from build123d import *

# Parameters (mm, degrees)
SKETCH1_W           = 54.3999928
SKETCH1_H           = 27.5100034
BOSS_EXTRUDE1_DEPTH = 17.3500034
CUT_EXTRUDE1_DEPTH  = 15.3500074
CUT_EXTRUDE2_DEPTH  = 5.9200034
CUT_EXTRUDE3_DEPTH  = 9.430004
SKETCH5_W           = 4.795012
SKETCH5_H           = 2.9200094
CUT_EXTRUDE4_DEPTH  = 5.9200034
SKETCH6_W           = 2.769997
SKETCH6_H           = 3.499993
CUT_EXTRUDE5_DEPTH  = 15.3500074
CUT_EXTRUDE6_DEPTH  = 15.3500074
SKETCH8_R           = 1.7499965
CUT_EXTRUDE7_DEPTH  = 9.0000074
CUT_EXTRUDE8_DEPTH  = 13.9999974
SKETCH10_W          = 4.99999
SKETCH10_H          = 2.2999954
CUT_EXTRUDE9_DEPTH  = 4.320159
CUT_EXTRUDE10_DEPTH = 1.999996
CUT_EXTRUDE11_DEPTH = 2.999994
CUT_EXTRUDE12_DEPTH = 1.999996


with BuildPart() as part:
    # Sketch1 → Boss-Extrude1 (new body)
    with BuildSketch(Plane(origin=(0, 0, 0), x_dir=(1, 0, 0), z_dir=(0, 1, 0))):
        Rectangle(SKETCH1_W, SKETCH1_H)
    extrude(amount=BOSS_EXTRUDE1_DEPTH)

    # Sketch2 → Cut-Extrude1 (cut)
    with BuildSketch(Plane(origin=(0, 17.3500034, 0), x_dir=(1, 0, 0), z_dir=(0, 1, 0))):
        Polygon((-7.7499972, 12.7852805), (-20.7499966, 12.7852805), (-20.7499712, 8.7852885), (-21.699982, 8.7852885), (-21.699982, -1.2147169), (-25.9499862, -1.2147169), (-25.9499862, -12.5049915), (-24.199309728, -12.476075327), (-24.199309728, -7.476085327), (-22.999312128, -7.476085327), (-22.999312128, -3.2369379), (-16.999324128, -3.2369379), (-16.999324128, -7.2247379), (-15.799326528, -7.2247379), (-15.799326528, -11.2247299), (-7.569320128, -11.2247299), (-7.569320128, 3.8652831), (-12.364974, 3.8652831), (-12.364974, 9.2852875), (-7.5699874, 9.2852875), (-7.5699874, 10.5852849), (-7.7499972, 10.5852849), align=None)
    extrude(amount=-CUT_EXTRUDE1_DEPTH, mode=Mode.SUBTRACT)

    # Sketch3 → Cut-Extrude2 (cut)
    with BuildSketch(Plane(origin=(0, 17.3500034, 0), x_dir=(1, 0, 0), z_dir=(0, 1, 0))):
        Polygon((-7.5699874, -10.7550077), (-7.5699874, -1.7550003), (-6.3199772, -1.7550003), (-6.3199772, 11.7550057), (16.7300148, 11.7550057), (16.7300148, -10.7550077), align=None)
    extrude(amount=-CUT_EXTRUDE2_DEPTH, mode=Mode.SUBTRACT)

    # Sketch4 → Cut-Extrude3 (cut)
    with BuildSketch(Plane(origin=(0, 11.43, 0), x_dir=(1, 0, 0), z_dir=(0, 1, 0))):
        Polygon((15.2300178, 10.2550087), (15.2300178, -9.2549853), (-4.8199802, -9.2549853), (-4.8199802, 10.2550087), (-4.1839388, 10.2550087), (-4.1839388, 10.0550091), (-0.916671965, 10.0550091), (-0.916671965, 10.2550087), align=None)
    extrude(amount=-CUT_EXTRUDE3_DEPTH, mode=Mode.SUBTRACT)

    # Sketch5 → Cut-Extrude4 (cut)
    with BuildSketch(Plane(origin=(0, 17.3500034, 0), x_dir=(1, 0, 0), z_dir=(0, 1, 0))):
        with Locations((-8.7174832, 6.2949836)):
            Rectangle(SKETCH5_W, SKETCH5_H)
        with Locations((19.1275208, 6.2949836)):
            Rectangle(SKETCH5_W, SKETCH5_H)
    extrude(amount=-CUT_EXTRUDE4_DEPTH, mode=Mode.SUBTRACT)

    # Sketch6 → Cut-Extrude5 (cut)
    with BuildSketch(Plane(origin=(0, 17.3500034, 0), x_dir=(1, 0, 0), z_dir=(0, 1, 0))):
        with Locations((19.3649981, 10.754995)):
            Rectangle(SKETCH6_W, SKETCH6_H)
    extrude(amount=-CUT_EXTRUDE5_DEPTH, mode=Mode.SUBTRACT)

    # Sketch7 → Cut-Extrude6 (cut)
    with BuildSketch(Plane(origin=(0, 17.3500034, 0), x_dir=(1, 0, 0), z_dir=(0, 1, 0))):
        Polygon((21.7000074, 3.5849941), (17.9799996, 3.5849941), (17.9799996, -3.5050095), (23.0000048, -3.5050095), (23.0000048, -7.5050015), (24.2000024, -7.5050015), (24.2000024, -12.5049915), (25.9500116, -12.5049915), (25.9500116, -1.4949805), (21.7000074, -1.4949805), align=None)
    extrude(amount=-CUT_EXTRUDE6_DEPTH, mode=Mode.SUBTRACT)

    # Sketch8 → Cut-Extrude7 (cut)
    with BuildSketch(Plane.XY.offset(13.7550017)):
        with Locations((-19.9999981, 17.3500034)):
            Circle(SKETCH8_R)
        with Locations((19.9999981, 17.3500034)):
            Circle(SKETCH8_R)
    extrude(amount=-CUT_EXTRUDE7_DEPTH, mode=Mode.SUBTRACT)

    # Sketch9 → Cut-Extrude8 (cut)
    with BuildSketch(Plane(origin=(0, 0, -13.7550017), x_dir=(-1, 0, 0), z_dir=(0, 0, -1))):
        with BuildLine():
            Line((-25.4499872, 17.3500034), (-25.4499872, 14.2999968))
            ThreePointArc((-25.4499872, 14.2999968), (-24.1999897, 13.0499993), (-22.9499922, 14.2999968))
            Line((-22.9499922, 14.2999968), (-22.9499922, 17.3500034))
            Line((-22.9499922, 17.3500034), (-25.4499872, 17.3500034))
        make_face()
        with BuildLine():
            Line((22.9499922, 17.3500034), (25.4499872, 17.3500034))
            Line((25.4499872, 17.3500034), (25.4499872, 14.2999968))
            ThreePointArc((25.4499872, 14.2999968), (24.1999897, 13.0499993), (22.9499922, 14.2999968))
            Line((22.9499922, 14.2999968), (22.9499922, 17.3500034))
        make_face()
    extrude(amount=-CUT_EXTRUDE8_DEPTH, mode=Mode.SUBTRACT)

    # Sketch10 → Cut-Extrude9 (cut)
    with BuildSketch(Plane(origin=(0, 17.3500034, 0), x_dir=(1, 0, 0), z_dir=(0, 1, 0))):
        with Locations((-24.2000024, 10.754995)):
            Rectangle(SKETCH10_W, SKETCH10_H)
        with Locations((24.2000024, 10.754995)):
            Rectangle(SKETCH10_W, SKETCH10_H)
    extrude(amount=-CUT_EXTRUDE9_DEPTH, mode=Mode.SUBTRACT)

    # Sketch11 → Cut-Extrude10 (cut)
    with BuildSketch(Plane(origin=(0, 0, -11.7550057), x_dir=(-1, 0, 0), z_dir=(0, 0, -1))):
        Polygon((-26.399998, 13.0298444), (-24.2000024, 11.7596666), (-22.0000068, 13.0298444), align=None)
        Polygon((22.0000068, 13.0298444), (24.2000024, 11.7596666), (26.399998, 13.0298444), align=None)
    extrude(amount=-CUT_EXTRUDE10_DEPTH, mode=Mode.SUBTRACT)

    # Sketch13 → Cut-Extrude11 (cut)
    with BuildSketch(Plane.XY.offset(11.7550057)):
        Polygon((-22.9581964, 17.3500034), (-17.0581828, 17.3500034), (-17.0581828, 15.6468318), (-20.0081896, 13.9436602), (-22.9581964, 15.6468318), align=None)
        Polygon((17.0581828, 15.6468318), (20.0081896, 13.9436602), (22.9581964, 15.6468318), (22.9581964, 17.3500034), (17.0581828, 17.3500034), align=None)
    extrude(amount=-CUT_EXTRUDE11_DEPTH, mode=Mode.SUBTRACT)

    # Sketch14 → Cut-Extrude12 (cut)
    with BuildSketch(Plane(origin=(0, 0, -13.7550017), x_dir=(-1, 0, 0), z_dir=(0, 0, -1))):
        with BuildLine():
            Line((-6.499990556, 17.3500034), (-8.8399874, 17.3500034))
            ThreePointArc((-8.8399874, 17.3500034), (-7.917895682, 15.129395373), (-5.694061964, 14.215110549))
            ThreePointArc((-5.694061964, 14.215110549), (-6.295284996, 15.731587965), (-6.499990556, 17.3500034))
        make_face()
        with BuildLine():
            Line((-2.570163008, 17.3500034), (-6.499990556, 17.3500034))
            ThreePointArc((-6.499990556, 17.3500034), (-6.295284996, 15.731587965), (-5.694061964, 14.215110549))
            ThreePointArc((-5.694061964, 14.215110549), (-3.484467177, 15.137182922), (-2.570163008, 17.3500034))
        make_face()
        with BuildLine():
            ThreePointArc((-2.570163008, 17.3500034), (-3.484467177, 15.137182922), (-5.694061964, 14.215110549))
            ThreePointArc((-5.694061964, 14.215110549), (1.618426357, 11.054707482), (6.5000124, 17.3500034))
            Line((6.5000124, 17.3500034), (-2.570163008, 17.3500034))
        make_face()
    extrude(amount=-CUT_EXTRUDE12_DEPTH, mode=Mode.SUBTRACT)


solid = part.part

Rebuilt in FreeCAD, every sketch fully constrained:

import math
import FreeCAD as App
import Part
import Sketcher

V = App.Vector
Q = App.Units.Quantity


def add_polygon(sketch, points):
    """Adds a closed chain of lines whose ends are joined by coincident constraints."""
    first, n = sketch.GeometryCount, len(points)
    for a, b in zip(points, points[1:] + points[:1]):
        sketch.addGeometry(Part.LineSegment(App.Vector(*a, 0), App.Vector(*b, 0)), False)
    for i in range(n):
        sketch.addConstraint(Sketcher.Constraint("Coincident", first + i, 2, first + (i + 1) % n, 1))

doc = App.newDocument("Part")
body = doc.addObject("PartDesign::Body", "Body")

sketch1 = doc.addObject("Sketcher::SketchObject", "Sketch")
body.addObject(sketch1)
sketch1.AttachmentSupport = (doc.XZ_Plane, [""])
sketch1.MapMode = "FlatFace"
add_polygon(sketch1, [(-27, -14), (-27, 14), (27, 14), (27, -14)])
sketch1.addConstraint([
    Sketcher.Constraint("Vertical", 0),
    Sketcher.Constraint("Horizontal", 1),
    Sketcher.Constraint("Vertical", 2),
    Sketcher.Constraint("Horizontal", 3),
    Sketcher.Constraint("Symmetric", 0, 2, 2, 2, -1, 1),
    Sketcher.Constraint("DistanceY", -1, 1, 0, 2, Q("13.755002 mm")),
    Sketcher.Constraint("DistanceX", 1, 1, 1, 2, Q("54.399993 mm")),
])
pad1 = doc.addObject("PartDesign::Pad", "Pad")
body.addObject(pad1)
pad1.Profile = sketch1
pad1.Length = 17.350003
pad1.Reversed = True

sketch2 = doc.addObject("Sketcher::SketchObject", "Sketch001")
body.addObject(sketch2)
sketch2.AttachmentSupport = (doc.XZ_Plane, [""])
sketch2.MapMode = "FlatFace"
sketch2.AttachmentOffset = App.Placement(V(0, 0, -17.350003), App.Rotation())
add_polygon(sketch2, [(-7.75, -12.79), (-20.75, -12.79), (-20.75, -8.79), (-21.7, -8.79), (-21.7, 1.21), (-25.95, 1.21), (-25.95, 12.5), (-24.2, 12.48), (-24.2, 7.48), (-23, 7.48), (-23, 3.24), (-17, 3.24), (-17, 7.22), (-15.8, 7.22), (-15.8, 11.22), (-7.57, 11.22), (-7.57, -3.87), (-12.36, -3.87), (-12.36, -9.29), (-7.57, -9.29), (-7.57, -10.59), (-7.75, -10.59)])
sketch2.addConstraint([
    Sketcher.Constraint("Horizontal", 0),
    Sketcher.Constraint("Horizontal", 2),
    Sketcher.Constraint("Vertical", 3),
    Sketcher.Constraint("Horizontal", 4),
    Sketcher.Constraint("Vertical", 5),
    Sketcher.Constraint("Vertical", 7),
    Sketcher.Constraint("Horizontal", 8),
    Sketcher.Constraint("Vertical", 9),
    Sketcher.Constraint("Horizontal", 10),
    Sketcher.Constraint("Vertical", 11),
    Sketcher.Constraint("Horizontal", 12),
    Sketcher.Constraint("Vertical", 13),
    Sketcher.Constraint("Horizontal", 14),
    Sketcher.Constraint("Vertical", 15),
    Sketcher.Constraint("Horizontal", 16),
    Sketcher.Constraint("Vertical", 17),
    Sketcher.Constraint("Horizontal", 18),
    Sketcher.Constraint("Vertical", 19),
    Sketcher.Constraint("Horizontal", 20),
    Sketcher.Constraint("Vertical", 21),
    Sketcher.Constraint("Equal", 8, 12),
    Sketcher.Constraint("DistanceX", 0, 2, 0, 1, Q("12.999999 mm")),
    Sketcher.Constraint("DistanceY", 17, 2, 1, 2, Q("0.499999 mm")),
    Sketcher.Constraint("DistanceY", 16, 2, 3, 2, Q("5.08 mm")),
    Sketcher.Constraint("DistanceY", 19, 2, 15, 2, Q("6.720002 mm")),
    Sketcher.Constraint("DistanceY", 11, 1, 11, 2, Q("3.9878 mm")),
    Sketcher.Constraint("DistanceX", 2, 2, 2, 1, Q("0.950011 mm")),
    Sketcher.Constraint("DistanceX", 20, 2, 20, 1, Q("0.18001 mm")),
    Sketcher.Constraint("DistanceY", 7, 2, 7, 1, Q("4.99999 mm")),
    Sketcher.Constraint("DistanceY", 13, 1, 13, 2, Q("3.999992 mm")),
    Sketcher.Constraint("DistanceX", 4, 2, 4, 1, Q("4.250004 mm")),
    Sketcher.Constraint("DistanceX", 8, 1, 8, 2, Q("1.199998 mm")),
    Sketcher.Constraint("DistanceX", 10, 1, 10, 2, Q("5.999988 mm")),
    Sketcher.Constraint("DistanceX", 14, 1, 14, 2, Q("8.230006 mm")),
    Sketcher.Constraint("DistanceX", 16, 2, 16, 1, Q("4.795654 mm")),
    Sketcher.Constraint("DistanceX", 18, 1, 18, 2, Q("4.794987 mm")),
    Sketcher.Constraint("DistanceY", 3, 1, 3, 2, Q("10.000005 mm")),
    Sketcher.Constraint("DistanceY", 5, 1, 5, 2, Q("11.290275 mm")),
    Sketcher.Constraint("DistanceY", 9, 2, 9, 1, Q("4.239147 mm")),
    Sketcher.Constraint("DistanceY", 15, 2, 15, 1, Q("15.090013 mm")),
    Sketcher.Constraint("DistanceY", 21, 2, 21, 1, Q("2.199996 mm")),
    Sketcher.Constraint("DistanceY", 0, 2, -1, 1, Q("12.785281 mm")),
    Sketcher.Constraint("DistanceX", 1, 2, -1, 1, Q("20.749971 mm")),
    Sketcher.Constraint("DistanceX", 6, 2, -1, 1, Q("24.19931 mm")),
])
pocket1 = doc.addObject("PartDesign::Pocket", "Pocket")
body.addObject(pocket1)
pocket1.Profile = sketch2
pocket1.Length = 15.350007
pocket1.Reversed = True

sketch3 = doc.addObject("Sketcher::SketchObject", "Sketch002")
body.addObject(sketch3)
sketch3.AttachmentSupport = (doc.XZ_Plane, [""])
sketch3.MapMode = "FlatFace"
sketch3.AttachmentOffset = App.Placement(V(0, 0, -17.350003), App.Rotation())
add_polygon(sketch3, [(-7.6, 1.8), (-7.6, 10.8), (16.7, 10.8), (16.7, -11.8), (-6.3, -11.8), (-6.3, 1.8)])
sketch3.addConstraint([
    Sketcher.Constraint("Vertical", 0),
    Sketcher.Constraint("Horizontal", 1),
    Sketcher.Constraint("Vertical", 2),
    Sketcher.Constraint("Horizontal", 3),
    Sketcher.Constraint("Vertical", 4),
    Sketcher.Constraint("Horizontal", 5),
    Sketcher.Constraint("DistanceY", -1, 1, 4, 2, Q("1.755 mm")),
    Sketcher.Constraint("DistanceX", 3, 2, 3, 1, Q("23.049992 mm")),
    Sketcher.Constraint("DistanceX", 5, 2, 5, 1, Q("1.25001 mm")),
    Sketcher.Constraint("DistanceY", 0, 1, 0, 2, Q("9.000007 mm")),
    Sketcher.Constraint("DistanceY", 2, 2, 2, 1, Q("22.510013 mm")),
    Sketcher.Constraint("DistanceX", 0, 2, -1, 1, Q("7.569987 mm")),
])
pocket2 = doc.addObject("PartDesign::Pocket", "Pocket001")
body.addObject(pocket2)
pocket2.Profile = sketch3
pocket2.Length = 5.920003
pocket2.Reversed = True

sketch4 = doc.addObject("Sketcher::SketchObject", "Sketch003")
body.addObject(sketch4)
sketch4.AttachmentSupport = (doc.XZ_Plane, [""])
sketch4.MapMode = "FlatFace"
sketch4.AttachmentOffset = App.Placement(V(0, 0, -11.43), App.Rotation())
add_polygon(sketch4, [(15.23, 9.25), (15.23, -10.26), (-0.92, -10.26), (-0.92, -10.06), (-4.18, -10.06), (-4.18, -10.26), (-4.82, -10.26), (-4.82, 9.25)])
sketch4.addConstraint([
    Sketcher.Constraint("Vertical", 0),
    Sketcher.Constraint("Horizontal", 1),
    Sketcher.Constraint("Vertical", 2),
    Sketcher.Constraint("Horizontal", 3),
    Sketcher.Constraint("Vertical", 4),
    Sketcher.Constraint("Horizontal", 5),
    Sketcher.Constraint("Vertical", 6),
    Sketcher.Constraint("Horizontal", 7),
    Sketcher.Constraint("Horizontal", 1, 2, 4, 2),
    Sketcher.Constraint("DistanceY", 2, 1, 2, 2, Q("0.2 mm")),
    Sketcher.Constraint("DistanceX", 7, 1, 7, 2, Q("20.049998 mm")),
    Sketcher.Constraint("DistanceX", 1, 2, 1, 1, Q("16.14669 mm")),
    Sketcher.Constraint("DistanceX", 5, 2, 5, 1, Q("0.636041 mm")),
    Sketcher.Constraint("DistanceY", 0, 2, 0, 1, Q("19.509994 mm")),
    Sketcher.Constraint("DistanceY", 0, 2, -1, 1, Q("10.255009 mm")),
    Sketcher.Constraint("DistanceX", 1, 2, -1, 1, Q("0.916672 mm")),
])
pocket3 = doc.addObject("PartDesign::Pocket", "Pocket002")
body.addObject(pocket3)
pocket3.Profile = sketch4
pocket3.Length = 9.430004
pocket3.Reversed = True

sketch5 = doc.addObject("Sketcher::SketchObject", "Sketch004")
body.addObject(sketch5)
sketch5.AttachmentSupport = (doc.XZ_Plane, [""])
sketch5.MapMode = "FlatFace"
sketch5.AttachmentOffset = App.Placement(V(0, 0, -17.350003), App.Rotation())
add_polygon(sketch5, [(-11.1, -7.8), (-11.1, -4.8), (-6.3, -4.8), (-6.3, -7.8)])
add_polygon(sketch5, [(16.7, -7.8), (16.7, -4.8), (21.5, -4.8), (21.5, -7.8)])
sketch5.addConstraint([
    Sketcher.Constraint("Vertical", 0),
    Sketcher.Constraint("Horizontal", 1),
    Sketcher.Constraint("Vertical", 2),
    Sketcher.Constraint("Horizontal", 3),
    Sketcher.Constraint("Vertical", 4),
    Sketcher.Constraint("Horizontal", 5),
    Sketcher.Constraint("Vertical", 6),
    Sketcher.Constraint("Horizontal", 7),
    Sketcher.Constraint("Horizontal", 1, 2, 4, 2),
    Sketcher.Constraint("Horizontal", 3, 2, 6, 2),
    Sketcher.Constraint("Equal", 3, 5),
    Sketcher.Constraint("DistanceX", 1, 1, 1, 2, Q("4.795012 mm")),
    Sketcher.Constraint("DistanceY", 0, 1, 0, 2, Q("2.920009 mm")),
    Sketcher.Constraint("DistanceX", 0, 2, -1, 1, Q("11.114989 mm")),
    Sketcher.Constraint("DistanceY", 0, 2, -1, 1, Q("4.834979 mm")),
    Sketcher.Constraint("DistanceX", 1, 2, 4, 2, Q("23.049992 mm")),
])
pocket4 = doc.addObject("PartDesign::Pocket", "Pocket003")
body.addObject(pocket4)
pocket4.Profile = sketch5
pocket4.Length = 5.920003
pocket4.Reversed = True

sketch6 = doc.addObject("Sketcher::SketchObject", "Sketch005")
body.addObject(sketch6)
sketch6.AttachmentSupport = (doc.XZ_Plane, [""])
sketch6.MapMode = "FlatFace"
sketch6.AttachmentOffset = App.Placement(V(0, 0, -17.350003), App.Rotation())
add_polygon(sketch6, [(18, -12.5), (18, -9), (20.7, -9), (20.7, -12.5)])
sketch6.addConstraint([
    Sketcher.Constraint("Vertical", 0),
    Sketcher.Constraint("Horizontal", 1),
    Sketcher.Constraint("Vertical", 2),
    Sketcher.Constraint("Horizontal", 3),
    Sketcher.Constraint("DistanceX", -1, 1, 0, 2, Q("17.98 mm")),
    Sketcher.Constraint("DistanceY", 0, 2, -1, 1, Q("9.004998 mm")),
    Sketcher.Constraint("DistanceX", 1, 1, 1, 2, Q("2.769997 mm")),
    Sketcher.Constraint("DistanceY", 0, 1, 0, 2, Q("3.499993 mm")),
])
pocket5 = doc.addObject("PartDesign::Pocket", "Pocket004")
body.addObject(pocket5)
pocket5.Profile = sketch6
pocket5.Length = 15.350007
pocket5.Reversed = True

sketch7 = doc.addObject("Sketcher::SketchObject", "Sketch006")
body.addObject(sketch7)
sketch7.AttachmentSupport = (doc.XZ_Plane, [""])
sketch7.MapMode = "FlatFace"
sketch7.AttachmentOffset = App.Placement(V(0, 0, -17.350003), App.Rotation())
add_polygon(sketch7, [(21.7, -3.6), (18, -3.6), (18, 3.5), (23, 3.5), (23, 7.5), (24.2, 7.5), (24.2, 12.5), (26, 12.5), (26, 1.5), (21.7, 1.5)])
sketch7.addConstraint([
    Sketcher.Constraint("Horizontal", 0),
    Sketcher.Constraint("Vertical", 1),
    Sketcher.Constraint("Horizontal", 2),
    Sketcher.Constraint("Vertical", 3),
    Sketcher.Constraint("Horizontal", 4),
    Sketcher.Constraint("Vertical", 5),
    Sketcher.Constraint("Horizontal", 6),
    Sketcher.Constraint("Vertical", 7),
    Sketcher.Constraint("Horizontal", 8),
    Sketcher.Constraint("Vertical", 9),
    Sketcher.Constraint("DistanceX", -1, 1, 0, 2, Q("17.98 mm")),
    Sketcher.Constraint("DistanceY", -1, 1, 3, 2, Q("7.505001 mm")),
    Sketcher.Constraint("DistanceX", 6, 1, 6, 2, Q("1.750009 mm")),
    Sketcher.Constraint("DistanceY", 3, 1, 3, 2, Q("3.999992 mm")),
    Sketcher.Constraint("DistanceY", 5, 1, 5, 2, Q("4.99999 mm")),
    Sketcher.Constraint("DistanceY", 7, 2, 7, 1, Q("11.010011 mm")),
    Sketcher.Constraint("DistanceX", 0, 2, 0, 1, Q("3.720008 mm")),
    Sketcher.Constraint("DistanceX", 2, 1, 2, 2, Q("5.020005 mm")),
    Sketcher.Constraint("DistanceX", 4, 1, 4, 2, Q("1.199998 mm")),
    Sketcher.Constraint("DistanceY", 1, 1, 1, 2, Q("7.090004 mm")),
])
pocket6 = doc.addObject("PartDesign::Pocket", "Pocket005")
body.addObject(pocket6)
pocket6.Profile = sketch7
pocket6.Length = 15.350007
pocket6.Reversed = True

sketch8 = doc.addObject("Sketcher::SketchObject", "Sketch007")
body.addObject(sketch8)
sketch8.AttachmentSupport = (doc.XY_Plane, [""])
sketch8.MapMode = "FlatFace"
sketch8.AttachmentOffset = App.Placement(V(0, 0, 13.755002), App.Rotation())
sketch8.addGeometry([
    Part.Circle(V(-20, 17.4, 0), V(0, 0, 1), 1.7),
    Part.Circle(V(20, 17.4, 0), V(0, 0, 1), 1.7),
], False)
sketch8.addConstraint([
    Sketcher.Constraint("Equal", 0, 1),
    Sketcher.Constraint("Symmetric", 0, 3, 1, 3, -2),
    Sketcher.Constraint("DistanceX", 0, 3, -1, 1, Q("19.999998 mm")),
    Sketcher.Constraint("Diameter", 0, Q("3.499993 mm")),
    Sketcher.Constraint("DistanceY", -1, 1, 0, 3, Q("17.350003 mm")),
])
pocket7 = doc.addObject("PartDesign::Pocket", "Pocket006")
body.addObject(pocket7)
pocket7.Profile = sketch8
pocket7.Length = 9.000007

sketch9 = doc.addObject("Sketcher::SketchObject", "Sketch008")
body.addObject(sketch9)
sketch9.AttachmentSupport = (doc.XY_Plane, [""])
sketch9.MapMode = "FlatFace"
sketch9.AttachmentOffset = App.Placement(V(0, 0, -13.755002), App.Rotation())
sketch9.addGeometry([
    Part.LineSegment(V(25.4, 17.4, 0), V(25.4, 14.3, 0)),
    Part.ArcOfCircle(Part.Circle(V(24.2, 14.3, 0), V(0, 0, 1), 1.2), math.radians(180), math.radians(360)),
    Part.LineSegment(V(22.9, 14.3, 0), V(22.9, 17.4, 0)),
    Part.LineSegment(V(22.9, 17.4, 0), V(25.4, 17.4, 0)),
    Part.LineSegment(V(-25.4, 17.4, 0), V(-22.9, 17.4, 0)),
    Part.LineSegment(V(-22.9, 17.4, 0), V(-22.9, 14.3, 0)),
    Part.ArcOfCircle(Part.Circle(V(-24.2, 14.3, 0), V(0, 0, 1), 1.2), math.radians(180), math.radians(360)),
    Part.LineSegment(V(-25.4, 14.3, 0), V(-25.4, 17.4, 0)),
], False)
sketch9.addConstraint([
    Sketcher.Constraint("Tangent", 0, 2, 1, 2),
    Sketcher.Constraint("Tangent", 1, 1, 2, 1),
    Sketcher.Constraint("Coincident", 2, 2, 3, 1),
    Sketcher.Constraint("Coincident", 3, 2, 0, 1),
    Sketcher.Constraint("Coincident", 4, 2, 5, 1),
    Sketcher.Constraint("Tangent", 5, 2, 6, 2),
    Sketcher.Constraint("Tangent", 6, 1, 7, 1),
    Sketcher.Constraint("Coincident", 7, 2, 4, 1),
    Sketcher.Constraint("Vertical", 0),
    Sketcher.Constraint("Vertical", 2),
    Sketcher.Constraint("Horizontal", 3),
    Sketcher.Constraint("Horizontal", 4),
    Sketcher.Constraint("Vertical", 5),
    Sketcher.Constraint("Vertical", 7),
    Sketcher.Constraint("Equal", 1, 6),
    Sketcher.Constraint("Symmetric", 1, 3, 6, 3, -2),
    Sketcher.Constraint("Horizontal", 3, 2, 4, 2),
    Sketcher.Constraint("Radius", 1, Q("1.249998 mm")),
    Sketcher.Constraint("DistanceY", 0, 2, 0, 1, Q("3.050007 mm")),
    Sketcher.Constraint("DistanceX", -1, 1, 1, 3, Q("24.19999 mm")),
    Sketcher.Constraint("DistanceY", -1, 1, 1, 3, Q("14.299997 mm")),
])
pocket8 = doc.addObject("PartDesign::Pocket", "Pocket007")
body.addObject(pocket8)
pocket8.Profile = sketch9
pocket8.Length = 13.999997
pocket8.Reversed = True

sketch10 = doc.addObject("Sketcher::SketchObject", "Sketch009")
body.addObject(sketch10)
sketch10.AttachmentSupport = (doc.XZ_Plane, [""])
sketch10.MapMode = "FlatFace"
sketch10.AttachmentOffset = App.Placement(V(0, 0, -17.350003), App.Rotation())
add_polygon(sketch10, [(-26.7, -11.9), (-26.7, -9.6), (-21.7, -9.6), (-21.7, -11.9)])
add_polygon(sketch10, [(21.7, -11.9), (21.7, -9.6), (26.7, -9.6), (26.7, -11.9)])
sketch10.addConstraint([
    Sketcher.Constraint("Vertical", 0),
    Sketcher.Constraint("Horizontal", 1),
    Sketcher.Constraint("Vertical", 2),
    Sketcher.Constraint("Horizontal", 3),
    Sketcher.Constraint("Vertical", 4),
    Sketcher.Constraint("Horizontal", 5),
    Sketcher.Constraint("Vertical", 6),
    Sketcher.Constraint("Horizontal", 7),
    Sketcher.Constraint("Symmetric", 1, 2, 4, 2, -2),
    Sketcher.Constraint("Symmetric", 3, 2, 6, 2, -2),
    Sketcher.Constraint("DistanceX", 1, 1, 1, 2, Q("4.99999 mm")),
    Sketcher.Constraint("DistanceY", 0, 1, 0, 2, Q("2.299995 mm")),
    Sketcher.Constraint("DistanceX", 0, 2, -1, 1, Q("26.699997 mm")),
    Sketcher.Constraint("DistanceY", 0, 2, -1, 1, Q("9.604997 mm")),
])
pocket9 = doc.addObject("PartDesign::Pocket", "Pocket008")
body.addObject(pocket9)
pocket9.Profile = sketch10
pocket9.Length = 4.320159
pocket9.Reversed = True

sketch11 = doc.addObject("Sketcher::SketchObject", "Sketch010")
body.addObject(sketch11)
sketch11.AttachmentSupport = (doc.XY_Plane, [""])
sketch11.MapMode = "FlatFace"
sketch11.AttachmentOffset = App.Placement(V(0, 0, -11.755006), App.Rotation())
add_polygon(sketch11, [(26.4, 13), (24.2, 11.8), (22, 13)])
add_polygon(sketch11, [(-22, 13), (-24.2, 11.8), (-26.4, 13)])
sketch11.addConstraint([
    Sketcher.Constraint("Horizontal", 2),
    Sketcher.Constraint("Horizontal", 5),
    Sketcher.Constraint("Symmetric", 0, 2, 3, 2, -2),
    Sketcher.Constraint("Symmetric", 2, 2, 4, 2, -2),
    Sketcher.Constraint("Parallel", 0, 3),
    Sketcher.Constraint("Parallel", 1, 4),
    Sketcher.Constraint("DistanceX", -1, 1, 2, 2, Q("26.399998 mm")),
    Sketcher.Constraint("DistanceX", 3, 2, 2, 2, Q("50.6 mm")),
    Sketcher.Constraint("Distance", 0, Q("2.540341 mm")),
    Sketcher.Constraint("DistanceY", -1, 1, 0, 2, Q("11.759667 mm")),
])
pocket10 = doc.addObject("PartDesign::Pocket", "Pocket009")
body.addObject(pocket10)
pocket10.Profile = sketch11
pocket10.Length = 1.999996
pocket10.Reversed = True

sketch12 = doc.addObject("Sketcher::SketchObject", "Sketch011")
body.addObject(sketch12)
sketch12.AttachmentSupport = (doc.XY_Plane, [""])
sketch12.MapMode = "FlatFace"
sketch12.AttachmentOffset = App.Placement(V(0, 0, 11.755006), App.Rotation())
add_polygon(sketch12, [(-17.1, 17.4), (-23, 17.4), (-23, 15.6), (-20, 13.9), (-17.1, 15.6)])
add_polygon(sketch12, [(17.1, 15.6), (20, 13.9), (23, 15.6), (23, 17.4), (17.1, 17.4)])
sketch12.addConstraint([
    Sketcher.Constraint("Horizontal", 0),
    Sketcher.Constraint("Vertical", 1),
    Sketcher.Constraint("Vertical", 4),
    Sketcher.Constraint("Vertical", 7),
    Sketcher.Constraint("Horizontal", 8),
    Sketcher.Constraint("Vertical", 9),
    Sketcher.Constraint("Symmetric", 2, 2, 5, 2, -2),
    Sketcher.Constraint("Symmetric", 1, 2, 6, 2, -2),
    Sketcher.Constraint("Symmetric", 4, 2, 8, 2, -2),
    Sketcher.Constraint("Parallel", 2, 5),
    Sketcher.Constraint("Parallel", 3, 6),
    Sketcher.Constraint("Horizontal", 1, 2, 3, 2),
    Sketcher.Constraint("DistanceY", 1, 2, 1, 1, Q("1.703172 mm")),
    Sketcher.Constraint("DistanceX", 0, 2, 0, 1, Q("5.900014 mm")),
    Sketcher.Constraint("DistanceY", -1, 1, 1, 2, Q("15.646832 mm")),
    Sketcher.Constraint("DistanceX", 2, 2, -1, 1, Q("20.00819 mm")),
    Sketcher.Constraint("DistanceY", -1, 1, 2, 2, Q("13.94366 mm")),
])
pocket11 = doc.addObject("PartDesign::Pocket", "Pocket010")
body.addObject(pocket11)
pocket11.Profile = sketch12
pocket11.Length = 2.999994

sketch13 = doc.addObject("Sketcher::SketchObject", "Sketch012")
body.addObject(sketch13)
sketch13.AttachmentSupport = (doc.XY_Plane, [""])
sketch13.MapMode = "FlatFace"
sketch13.AttachmentOffset = App.Placement(V(0, 0, -13.755002), App.Rotation())
sketch13.addGeometry([
    Part.ArcOfCircle(Part.Circle(V(5.7, 17.4, 0), V(0, 0, 1), 3.1), math.radians(-90), math.radians(0)),
    Part.ArcOfCircle(Part.Circle(V(0, 17.4, 0), V(0, 0, 1), 6.5), math.radians(180), math.radians(331)),
    Part.LineSegment(V(-6.5, 17.4, 0), V(8.8, 17.4, 0)),
], False)
sketch13.addConstraint([
    Sketcher.Constraint("Coincident", 0, 1, 1, 2),
    Sketcher.Constraint("Coincident", 1, 1, 2, 1),
    Sketcher.Constraint("Coincident", 2, 2, 0, 2),
    Sketcher.Constraint("Horizontal", 2),
    Sketcher.Constraint("Horizontal", 0, 3, 1, 3),
    Sketcher.Constraint("Horizontal", 0, 3, 1, 1),
    Sketcher.Constraint("Radius", 1, Q("6.500001 mm")),
    Sketcher.Constraint("DistanceX", 2, 1, 2, 2, Q("15.34 mm")),
    Sketcher.Constraint("Radius", 0, Q("3.134912 mm")),
    Sketcher.Constraint("DistanceX", -1, 1, 0, 1, Q("5.694062 mm")),
    Sketcher.Constraint("DistanceY", -1, 1, 0, 1, Q("14.215111 mm")),
])
pocket12 = doc.addObject("PartDesign::Pocket", "Pocket011")
body.addObject(pocket12)
pocket12.Profile = sketch13
pocket12.Length = 1.999996
pocket12.Reversed = True

doc.recompute()
